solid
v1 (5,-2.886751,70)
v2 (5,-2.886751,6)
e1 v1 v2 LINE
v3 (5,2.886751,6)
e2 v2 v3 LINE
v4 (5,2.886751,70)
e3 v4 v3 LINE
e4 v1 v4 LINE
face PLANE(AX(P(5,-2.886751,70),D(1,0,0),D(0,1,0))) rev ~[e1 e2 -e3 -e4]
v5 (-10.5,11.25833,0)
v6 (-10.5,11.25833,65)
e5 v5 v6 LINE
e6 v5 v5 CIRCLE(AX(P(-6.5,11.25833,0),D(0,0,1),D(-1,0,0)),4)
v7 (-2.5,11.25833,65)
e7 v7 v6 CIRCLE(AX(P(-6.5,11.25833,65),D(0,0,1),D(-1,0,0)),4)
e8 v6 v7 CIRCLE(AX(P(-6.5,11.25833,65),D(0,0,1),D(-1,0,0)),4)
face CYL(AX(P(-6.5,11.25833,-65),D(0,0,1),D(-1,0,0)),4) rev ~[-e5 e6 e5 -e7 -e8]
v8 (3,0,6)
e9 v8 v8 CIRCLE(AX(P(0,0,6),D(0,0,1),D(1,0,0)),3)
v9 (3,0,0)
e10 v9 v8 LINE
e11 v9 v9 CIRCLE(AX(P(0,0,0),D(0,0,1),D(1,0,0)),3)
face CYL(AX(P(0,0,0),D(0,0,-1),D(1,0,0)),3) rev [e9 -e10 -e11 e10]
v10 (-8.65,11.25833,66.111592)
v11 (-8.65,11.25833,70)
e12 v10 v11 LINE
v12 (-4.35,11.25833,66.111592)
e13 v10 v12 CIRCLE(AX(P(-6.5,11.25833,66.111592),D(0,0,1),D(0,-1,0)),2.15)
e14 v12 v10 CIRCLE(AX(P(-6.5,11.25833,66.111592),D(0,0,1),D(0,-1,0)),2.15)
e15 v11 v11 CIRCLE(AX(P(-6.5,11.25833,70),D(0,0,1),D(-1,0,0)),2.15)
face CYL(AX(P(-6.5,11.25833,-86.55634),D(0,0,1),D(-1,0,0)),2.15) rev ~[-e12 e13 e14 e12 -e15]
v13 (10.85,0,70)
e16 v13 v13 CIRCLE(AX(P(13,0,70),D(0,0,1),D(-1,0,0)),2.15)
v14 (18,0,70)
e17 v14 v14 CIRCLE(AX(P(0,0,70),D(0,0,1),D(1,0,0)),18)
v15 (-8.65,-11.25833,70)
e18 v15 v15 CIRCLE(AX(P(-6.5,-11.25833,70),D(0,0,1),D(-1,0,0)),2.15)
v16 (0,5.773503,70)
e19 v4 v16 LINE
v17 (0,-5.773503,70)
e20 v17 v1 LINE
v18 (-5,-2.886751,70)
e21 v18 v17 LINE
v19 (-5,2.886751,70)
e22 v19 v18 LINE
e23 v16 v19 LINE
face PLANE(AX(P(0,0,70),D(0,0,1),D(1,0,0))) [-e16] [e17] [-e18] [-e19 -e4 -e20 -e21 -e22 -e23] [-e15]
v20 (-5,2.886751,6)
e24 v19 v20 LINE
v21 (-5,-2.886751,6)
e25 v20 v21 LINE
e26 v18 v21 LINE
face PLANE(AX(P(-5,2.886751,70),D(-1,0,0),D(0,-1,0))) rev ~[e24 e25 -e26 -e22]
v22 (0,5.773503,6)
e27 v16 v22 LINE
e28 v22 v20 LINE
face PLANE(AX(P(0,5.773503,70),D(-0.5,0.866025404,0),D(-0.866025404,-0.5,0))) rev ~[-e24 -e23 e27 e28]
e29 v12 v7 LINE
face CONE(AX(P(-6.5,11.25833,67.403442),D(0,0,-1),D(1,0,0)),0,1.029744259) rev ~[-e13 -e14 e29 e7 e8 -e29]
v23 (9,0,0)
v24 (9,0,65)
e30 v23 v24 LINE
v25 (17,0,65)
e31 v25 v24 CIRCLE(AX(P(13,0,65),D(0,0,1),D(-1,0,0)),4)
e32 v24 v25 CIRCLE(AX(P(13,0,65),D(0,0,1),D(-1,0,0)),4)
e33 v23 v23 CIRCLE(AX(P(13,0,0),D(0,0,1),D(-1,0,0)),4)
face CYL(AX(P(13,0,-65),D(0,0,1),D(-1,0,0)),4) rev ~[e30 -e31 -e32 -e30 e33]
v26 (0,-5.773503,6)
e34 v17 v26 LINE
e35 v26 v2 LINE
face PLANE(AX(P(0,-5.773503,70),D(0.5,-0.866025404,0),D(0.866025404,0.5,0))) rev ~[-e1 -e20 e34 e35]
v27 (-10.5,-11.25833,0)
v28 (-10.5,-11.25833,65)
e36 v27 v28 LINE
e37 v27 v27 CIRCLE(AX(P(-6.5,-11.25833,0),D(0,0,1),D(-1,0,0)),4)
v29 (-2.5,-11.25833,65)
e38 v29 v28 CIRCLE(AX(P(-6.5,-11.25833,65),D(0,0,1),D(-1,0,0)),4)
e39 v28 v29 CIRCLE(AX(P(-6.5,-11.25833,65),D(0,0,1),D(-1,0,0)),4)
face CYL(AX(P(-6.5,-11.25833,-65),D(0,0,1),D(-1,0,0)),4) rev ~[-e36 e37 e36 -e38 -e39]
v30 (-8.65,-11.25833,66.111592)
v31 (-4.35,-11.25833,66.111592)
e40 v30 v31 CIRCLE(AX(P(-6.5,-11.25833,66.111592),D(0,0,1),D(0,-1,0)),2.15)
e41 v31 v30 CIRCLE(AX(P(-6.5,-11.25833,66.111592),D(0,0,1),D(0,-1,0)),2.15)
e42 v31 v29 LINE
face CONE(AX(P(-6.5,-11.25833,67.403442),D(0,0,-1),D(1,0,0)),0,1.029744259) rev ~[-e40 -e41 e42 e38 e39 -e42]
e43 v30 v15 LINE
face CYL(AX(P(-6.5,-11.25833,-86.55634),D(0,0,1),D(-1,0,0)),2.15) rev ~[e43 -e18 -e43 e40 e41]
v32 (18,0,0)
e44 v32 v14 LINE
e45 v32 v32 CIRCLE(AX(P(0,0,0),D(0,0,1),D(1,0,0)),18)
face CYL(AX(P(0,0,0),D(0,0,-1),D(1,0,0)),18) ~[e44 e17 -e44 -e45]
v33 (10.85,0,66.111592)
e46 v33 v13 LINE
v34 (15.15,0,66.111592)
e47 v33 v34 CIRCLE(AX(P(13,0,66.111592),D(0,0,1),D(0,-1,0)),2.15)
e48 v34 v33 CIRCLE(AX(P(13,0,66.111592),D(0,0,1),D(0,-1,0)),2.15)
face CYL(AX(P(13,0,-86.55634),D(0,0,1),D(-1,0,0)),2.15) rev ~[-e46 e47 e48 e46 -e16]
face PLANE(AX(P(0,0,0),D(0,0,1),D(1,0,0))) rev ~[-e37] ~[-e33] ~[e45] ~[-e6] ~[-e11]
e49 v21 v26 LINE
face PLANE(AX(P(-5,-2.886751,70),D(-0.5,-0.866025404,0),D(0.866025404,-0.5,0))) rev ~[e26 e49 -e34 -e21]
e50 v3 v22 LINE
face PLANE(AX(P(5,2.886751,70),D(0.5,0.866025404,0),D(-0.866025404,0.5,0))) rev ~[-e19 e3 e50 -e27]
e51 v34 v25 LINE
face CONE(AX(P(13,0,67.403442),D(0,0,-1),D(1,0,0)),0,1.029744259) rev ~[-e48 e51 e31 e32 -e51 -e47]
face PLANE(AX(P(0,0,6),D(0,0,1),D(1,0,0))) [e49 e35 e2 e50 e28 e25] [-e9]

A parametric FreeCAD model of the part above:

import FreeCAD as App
import Part
import Sketcher
Q = App.Units.Quantity

doc = App.newDocument("Part")
body = doc.addObject("PartDesign::Body", "Body")

# Sketch on XY plane
sketch1 = body.newObject("Sketcher::SketchObject", "Sketch")
sketch1.AttachmentSupport = (doc.getObject("XY_Plane"), [""])
sketch1.MapMode = "FlatFace"
sketch1.addGeometry(Part.Circle(App.Vector(0, 0, 0), App.Vector(0, 0, 1), 18), False)
sketch1.addGeometry(Part.Circle(App.Vector(0, 0, 0), App.Vector(0, 0, 1), 3), False)
sketch1.addConstraint(Sketcher.Constraint("Coincident", 0, 3, -1, 1))
sketch1.addConstraint(Sketcher.Constraint("Coincident", 1, 3, -1, 1))
sketch1.addConstraint(Sketcher.Constraint("Diameter", 0, Q("36 mm")))
sketch1.addConstraint(Sketcher.Constraint("Diameter", 1, Q("6 mm")))
pad1 = body.newObject("PartDesign::Pad", "Pad")
pad1.Profile = sketch1
pad1.Length = 70

# Sketch on XY plane
sketch2 = body.newObject("Sketcher::SketchObject", "Sketch001")
sketch2.AttachmentSupport = (doc.getObject("XY_Plane"), [""])
sketch2.MapMode = "FlatFace"
sketch2.AttachmentOffset = App.Placement(App.Vector(0, 0, 70), App.Rotation())
sketch2.addGeometry(Part.LineSegment(App.Vector(5, -2.886751, 0), App.Vector(5, 2.886751, 0)), False)
sketch2.addGeometry(Part.LineSegment(App.Vector(5, 2.886751, 0), App.Vector(0, 5.773503, 0)), False)
sketch2.addGeometry(Part.LineSegment(App.Vector(0, 5.773503, 0), App.Vector(-5, 2.886751, 0)), False)
sketch2.addGeometry(Part.LineSegment(App.Vector(-5, 2.886751, 0), App.Vector(-5, -2.886751, 0)), False)
sketch2.addGeometry(Part.LineSegment(App.Vector(-5, -2.886751, 0), App.Vector(0, -5.773503, 0)), False)
sketch2.addGeometry(Part.LineSegment(App.Vector(0, -5.773503, 0), App.Vector(5, -2.886751, 0)), False)
sketch2.addGeometry(Part.Circle(App.Vector(0, 0, 0), App.Vector(0, 0, 1), 3), False)
sketch2.addConstraint(Sketcher.Constraint("Coincident", 0, 2, 1, 1))
sketch2.addConstraint(Sketcher.Constraint("Coincident", 1, 2, 2, 1))
sketch2.addConstraint(Sketcher.Constraint("Coincident", 2, 2, 3, 1))
sketch2.addConstraint(Sketcher.Constraint("Coincident", 3, 2, 4, 1))
sketch2.addConstraint(Sketcher.Constraint("Coincident", 4, 2, 5, 1))
sketch2.addConstraint(Sketcher.Constraint("Coincident", 5, 2, 0, 1))
sketch2.addConstraint(Sketcher.Constraint("Vertical", 0))
sketch2.addConstraint(Sketcher.Constraint("Vertical", 3))
sketch2.addConstraint(Sketcher.Constraint("Coincident", 6, 3, -1, 1))
sketch2.addConstraint(Sketcher.Constraint("Symmetric", 0, 2, 3, 2, -1, 1))
sketch2.addConstraint(Sketcher.Constraint("Symmetric", 1, 2, 4, 2, -1, 1))
sketch2.addConstraint(Sketcher.Constraint("PointOnObject", 1, 2, -2))
sketch2.addConstraint(Sketcher.Constraint("Parallel", 2, 5))
sketch2.addConstraint(Sketcher.Constraint("Horizontal", 0, 2, 2, 2))
sketch2.addConstraint(Sketcher.Constraint("Diameter", 6, Q("6 mm")))
sketch2.addConstraint(Sketcher.Constraint("Angle", 1, Q("150 deg")))
sketch2.addConstraint(Sketcher.Constraint("DistanceX", -1, 1, 0, 2, Q("5 mm")))
sketch2.addConstraint(Sketcher.Constraint("DistanceY", 0, 1, 0, 2, Q("5.773503 mm")))
pocket1 = body.newObject("PartDesign::Pocket", "Pocket")
pocket1.Profile = sketch2
pocket1.Length = 64

# Sketch on XY plane
sketch3 = body.newObject("Sketcher::SketchObject", "Sketch002")
sketch3.AttachmentSupport = (doc.getObject("XY_Plane"), [""])
sketch3.MapMode = "FlatFace"
sketch3.addGeometry(Part.Circle(App.Vector(13, 0, 0), App.Vector(0, 0, 1), 2.15), False)
sketch3.addGeometry(Part.Circle(App.Vector(-6.5, 11.25833, 0), App.Vector(0, 0, 1), 2.15), False)
sketch3.addGeometry(Part.Circle(App.Vector(-6.5, -11.25833, 0), App.Vector(0, 0, 1), 2.15), False)
sketch3.addConstraint(Sketcher.Constraint("Equal", 0, 1))
sketch3.addConstraint(Sketcher.Constraint("Equal", 1, 2))
sketch3.addConstraint(Sketcher.Constraint("Symmetric", 1, 3, 2, 3, -1))
sketch3.addConstraint(Sketcher.Constraint("PointOnObject", 0, 3, -1))
sketch3.addConstraint(Sketcher.Constraint("Diameter", 0, Q("4.3 mm")))
sketch3.addConstraint(Sketcher.Constraint("DistanceX", -1, 1, 0, 3, Q("13 mm")))
sketch3.addConstraint(Sketcher.Constraint("DistanceX", 1, 3, -1, 1, Q("6.5 mm")))
sketch3.addConstraint(Sketcher.Constraint("DistanceY", -1, 1, 1, 3, Q("11.25833 mm")))
doc.recompute()
hole = body.newObject("PartDesign::Hole", "Hole")
hole.Profile = sketch3
hole.ThreadType = "None"
hole.Diameter = 4.3
hole.DepthType = "ThroughAll"
hole.Reversed = True

# Sketch on XY plane
sketch4 = body.newObject("Sketcher::SketchObject", "Sketch003")
sketch4.AttachmentSupport = (doc.getObject("XY_Plane"), [""])
sketch4.MapMode = "FlatFace"
sketch4.addGeometry(Part.Circle(App.Vector(13, 0, 0), App.Vector(0, 0, 1), 4), False)
sketch4.addGeometry(Part.Circle(App.Vector(-6.5, 11.25833, 0), App.Vector(0, 0, 1), 4), False)
sketch4.addGeometry(Part.Circle(App.Vector(-6.5, -11.25833, 0), App.Vector(0, 0, 1), 4), False)
sketch4.addConstraint(Sketcher.Constraint("Equal", 0, 1))
sketch4.addConstraint(Sketcher.Constraint("Equal", 1, 2))
sketch4.addConstraint(Sketcher.Constraint("Symmetric", 1, 3, 2, 3, -1))
sketch4.addConstraint(Sketcher.Constraint("PointOnObject", 0, 3, -1))
sketch4.addConstraint(Sketcher.Constraint("Diameter", 0, Q("8 mm")))
sketch4.addConstraint(Sketcher.Constraint("DistanceX", -1, 1, 0, 3, Q("13 mm")))
sketch4.addConstraint(Sketcher.Constraint("DistanceX", 1, 3, -1, 1, Q("6.5 mm")))
sketch4.addConstraint(Sketcher.Constraint("DistanceY", -1, 1, 1, 3, Q("11.25833 mm")))
doc.recompute()
hole2 = body.newObject("PartDesign::Hole", "Hole001")
hole2.Profile = sketch4
hole2.ThreadType = "None"
hole2.Diameter = 8
hole2.DepthType = "Dimension"
hole2.Depth = 65
hole2.DrillPoint = "Angled"
hole2.DrillPointAngle = 118
hole2.Reversed = True

doc.recompute()
